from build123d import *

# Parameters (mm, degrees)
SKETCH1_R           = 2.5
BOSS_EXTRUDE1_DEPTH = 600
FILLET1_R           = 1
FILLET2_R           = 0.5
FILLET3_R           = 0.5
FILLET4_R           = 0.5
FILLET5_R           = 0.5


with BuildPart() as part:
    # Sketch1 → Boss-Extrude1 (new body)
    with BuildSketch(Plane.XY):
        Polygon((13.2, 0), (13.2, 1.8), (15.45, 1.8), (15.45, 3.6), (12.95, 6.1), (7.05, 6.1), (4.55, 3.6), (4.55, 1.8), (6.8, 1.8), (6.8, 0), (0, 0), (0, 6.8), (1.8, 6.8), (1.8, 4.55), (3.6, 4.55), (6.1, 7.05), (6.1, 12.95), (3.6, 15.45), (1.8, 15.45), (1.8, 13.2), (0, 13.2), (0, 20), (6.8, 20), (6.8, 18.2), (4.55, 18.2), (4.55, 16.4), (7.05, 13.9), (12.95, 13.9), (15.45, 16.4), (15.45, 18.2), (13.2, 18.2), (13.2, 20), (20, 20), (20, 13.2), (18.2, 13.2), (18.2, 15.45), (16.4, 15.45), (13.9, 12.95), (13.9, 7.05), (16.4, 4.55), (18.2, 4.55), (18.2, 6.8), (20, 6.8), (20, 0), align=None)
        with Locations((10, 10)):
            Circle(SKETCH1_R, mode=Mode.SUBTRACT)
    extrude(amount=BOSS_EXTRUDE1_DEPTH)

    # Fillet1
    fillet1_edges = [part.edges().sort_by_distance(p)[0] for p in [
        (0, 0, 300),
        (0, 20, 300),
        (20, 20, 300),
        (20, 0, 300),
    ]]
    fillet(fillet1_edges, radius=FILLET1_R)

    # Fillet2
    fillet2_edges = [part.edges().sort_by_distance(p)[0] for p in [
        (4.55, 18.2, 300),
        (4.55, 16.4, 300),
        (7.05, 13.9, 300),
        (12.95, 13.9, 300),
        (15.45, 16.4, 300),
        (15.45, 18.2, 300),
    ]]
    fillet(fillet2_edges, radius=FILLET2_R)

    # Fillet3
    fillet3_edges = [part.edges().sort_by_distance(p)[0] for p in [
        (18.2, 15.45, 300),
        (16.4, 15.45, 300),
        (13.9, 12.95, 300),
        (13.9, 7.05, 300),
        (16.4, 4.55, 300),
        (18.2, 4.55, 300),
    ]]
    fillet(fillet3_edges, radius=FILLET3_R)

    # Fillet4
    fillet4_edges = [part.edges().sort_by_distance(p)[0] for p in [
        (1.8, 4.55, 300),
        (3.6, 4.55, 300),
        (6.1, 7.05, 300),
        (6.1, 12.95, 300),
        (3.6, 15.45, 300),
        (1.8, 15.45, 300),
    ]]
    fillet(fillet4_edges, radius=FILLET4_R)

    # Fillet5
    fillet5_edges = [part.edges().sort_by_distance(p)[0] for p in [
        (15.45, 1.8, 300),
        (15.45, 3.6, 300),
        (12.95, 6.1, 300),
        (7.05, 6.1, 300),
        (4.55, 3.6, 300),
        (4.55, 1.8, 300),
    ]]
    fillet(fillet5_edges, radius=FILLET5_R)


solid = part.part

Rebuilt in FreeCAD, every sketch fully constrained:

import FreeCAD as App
import Part
import Sketcher
from FreeCAD import Vector
Q = App.Units.Quantity


def edges_at(feature, points):
    """Names of the edges that pass closest to the given points."""
    edges = feature.Shape.Edges
    near = lambda p: min(range(len(edges)), key=lambda i: edges[i].distToShape(Part.Vertex(*p))[0])
    return sorted({f"Edge{near(p) + 1}" for p in points})

doc = App.newDocument("Part")
body = doc.addObject("PartDesign::Body", "Body")

sketch1 = doc.addObject("Sketcher::SketchObject", "Sketch")
body.addObject(sketch1)
sketch1.AttachmentSupport = (doc.XY_Plane, [""])
sketch1.MapMode = "FlatFace"
sketch1.addGeometry(Part.LineSegment(Vector(13.2, 1.8, 0), Vector(13.2, 0, 0)), False)
sketch1.addGeometry(Part.LineSegment(Vector(13.2, 0, 0), Vector(20, 0, 0)), False)
sketch1.addGeometry(Part.LineSegment(Vector(20, 0, 0), Vector(20, 6.8, 0)), False)
sketch1.addGeometry(Part.LineSegment(Vector(20, 6.8, 0), Vector(18.2, 6.8, 0)), False)
sketch1.addGeometry(Part.LineSegment(Vector(18.2, 6.8, 0), Vector(18.2, 4.55, 0)), False)
sketch1.addGeometry(Part.LineSegment(Vector(18.2, 4.55, 0), Vector(16.4, 4.55, 0)), False)
sketch1.addGeometry(Part.LineSegment(Vector(16.4, 4.55, 0), Vector(13.9, 7.05, 0)), False)
sketch1.addGeometry(Part.LineSegment(Vector(13.9, 7.05, 0), Vector(13.9, 12.95, 0)), False)
sketch1.addGeometry(Part.LineSegment(Vector(13.9, 12.95, 0), Vector(16.4, 15.45, 0)), False)
sketch1.addGeometry(Part.LineSegment(Vector(16.4, 15.45, 0), Vector(18.2, 15.45, 0)), False)
sketch1.addGeometry(Part.LineSegment(Vector(18.2, 15.45, 0), Vector(18.2, 13.2, 0)), False)
sketch1.addGeometry(Part.LineSegment(Vector(18.2, 13.2, 0), Vector(20, 13.2, 0)), False)
sketch1.addGeometry(Part.LineSegment(Vector(20, 13.2, 0), Vector(20, 20, 0)), False)
sketch1.addGeometry(Part.LineSegment(Vector(20, 20, 0), Vector(13.2, 20, 0)), False)
sketch1.addGeometry(Part.LineSegment(Vector(13.2, 20, 0), Vector(13.2, 18.2, 0)), False)
sketch1.addGeometry(Part.LineSegment(Vector(13.2, 18.2, 0), Vector(15.45, 18.2, 0)), False)
sketch1.addGeometry(Part.LineSegment(Vector(15.45, 18.2, 0), Vector(15.45, 16.4, 0)), False)
sketch1.addGeometry(Part.LineSegment(Vector(15.45, 16.4, 0), Vector(12.95, 13.9, 0)), False)
sketch1.addGeometry(Part.LineSegment(Vector(12.95, 13.9, 0), Vector(7.05, 13.9, 0)), False)
sketch1.addGeometry(Part.LineSegment(Vector(7.05, 13.9, 0), Vector(4.55, 16.4, 0)), False)
sketch1.addGeometry(Part.LineSegment(Vector(4.55, 16.4, 0), Vector(4.55, 18.2, 0)), False)
sketch1.addGeometry(Part.LineSegment(Vector(4.55, 18.2, 0), Vector(6.8, 18.2, 0)), False)
sketch1.addGeometry(Part.LineSegment(Vector(6.8, 18.2, 0), Vector(6.8, 20, 0)), False)
sketch1.addGeometry(Part.LineSegment(Vector(6.8, 20, 0), Vector(0, 20, 0)), False)
sketch1.addGeometry(Part.LineSegment(Vector(0, 20, 0), Vector(0, 13.2, 0)), False)
sketch1.addGeometry(Part.LineSegment(Vector(0, 13.2, 0), Vector(1.8, 13.2, 0)), False)
sketch1.addGeometry(Part.LineSegment(Vector(1.8, 13.2, 0), Vector(1.8, 15.45, 0)), False)
sketch1.addGeometry(Part.LineSegment(Vector(1.8, 15.45, 0), Vector(3.6, 15.45, 0)), False)
sketch1.addGeometry(Part.LineSegment(Vector(3.6, 15.45, 0), Vector(6.1, 12.95, 0)), False)
sketch1.addGeometry(Part.LineSegment(Vector(6.1, 12.95, 0), Vector(6.1, 7.05, 0)), False)
sketch1.addGeometry(Part.LineSegment(Vector(6.1, 7.05, 0), Vector(3.6, 4.55, 0)), False)
sketch1.addGeometry(Part.LineSegment(Vector(3.6, 4.55, 0), Vector(1.8, 4.55, 0)), False)
sketch1.addGeometry(Part.LineSegment(Vector(1.8, 4.55, 0), Vector(1.8, 6.8, 0)), False)
sketch1.addGeometry(Part.LineSegment(Vector(1.8, 6.8, 0), Vector(0, 6.8, 0)), False)
sketch1.addGeometry(Part.LineSegment(Vector(0, 6.8, 0), Vector(0, 0, 0)), False)
sketch1.addGeometry(Part.LineSegment(Vector(0, 0, 0), Vector(6.8, 0, 0)), False)
sketch1.addGeometry(Part.LineSegment(Vector(6.8, 0, 0), Vector(6.8, 1.8, 0)), False)
sketch1.addGeometry(Part.LineSegment(Vector(6.8, 1.8, 0), Vector(4.55, 1.8, 0)), False)
sketch1.addGeometry(Part.LineSegment(Vector(4.55, 1.8, 0), Vector(4.55, 3.6, 0)), False)
sketch1.addGeometry(Part.LineSegment(Vector(4.55, 3.6, 0), Vector(7.05, 6.1, 0)), False)
sketch1.addGeometry(Part.LineSegment(Vector(7.05, 6.1, 0), Vector(12.95, 6.1, 0)), False)
sketch1.addGeometry(Part.LineSegment(Vector(12.95, 6.1, 0), Vector(15.45, 3.6, 0)), False)
sketch1.addGeometry(Part.LineSegment(Vector(15.45, 3.6, 0), Vector(15.45, 1.8, 0)), False)
sketch1.addGeometry(Part.LineSegment(Vector(15.45, 1.8, 0), Vector(13.2, 1.8, 0)), False)
sketch1.addGeometry(Part.Circle(Vector(10, 10, 0), Vector(0, 0, 1), 2.5), False)
sketch1.addConstraint(Sketcher.Constraint("Coincident", 0, 2, 1, 1))
sketch1.addConstraint(Sketcher.Constraint("Coincident", 1, 2, 2, 1))
sketch1.addConstraint(Sketcher.Constraint("Coincident", 2, 2, 3, 1))
sketch1.addConstraint(Sketcher.Constraint("Coincident", 3, 2, 4, 1))
sketch1.addConstraint(Sketcher.Constraint("Coincident", 4, 2, 5, 1))
sketch1.addConstraint(Sketcher.Constraint("Coincident", 5, 2, 6, 1))
sketch1.addConstraint(Sketcher.Constraint("Coincident", 6, 2, 7, 1))
sketch1.addConstraint(Sketcher.Constraint("Coincident", 7, 2, 8, 1))
sketch1.addConstraint(Sketcher.Constraint("Coincident", 8, 2, 9, 1))
sketch1.addConstraint(Sketcher.Constraint("Coincident", 9, 2, 10, 1))
sketch1.addConstraint(Sketcher.Constraint("Coincident", 10, 2, 11, 1))
sketch1.addConstraint(Sketcher.Constraint("Coincident", 11, 2, 12, 1))
sketch1.addConstraint(Sketcher.Constraint("Coincident", 12, 2, 13, 1))
sketch1.addConstraint(Sketcher.Constraint("Coincident", 13, 2, 14, 1))
sketch1.addConstraint(Sketcher.Constraint("Coincident", 14, 2, 15, 1))
sketch1.addConstraint(Sketcher.Constraint("Coincident", 15, 2, 16, 1))
sketch1.addConstraint(Sketcher.Constraint("Coincident", 16, 2, 17, 1))
sketch1.addConstraint(Sketcher.Constraint("Coincident", 17, 2, 18, 1))
sketch1.addConstraint(Sketcher.Constraint("Coincident", 18, 2, 19, 1))
sketch1.addConstraint(Sketcher.Constraint("Coincident", 19, 2, 20, 1))
sketch1.addConstraint(Sketcher.Constraint("Coincident", 20, 2, 21, 1))
sketch1.addConstraint(Sketcher.Constraint("Coincident", 21, 2, 22, 1))
sketch1.addConstraint(Sketcher.Constraint("Coincident", 22, 2, 23, 1))
sketch1.addConstraint(Sketcher.Constraint("Coincident", 23, 2, 24, 1))
sketch1.addConstraint(Sketcher.Constraint("Coincident", 24, 2, 25, 1))
sketch1.addConstraint(Sketcher.Constraint("Coincident", 25, 2, 26, 1))
sketch1.addConstraint(Sketcher.Constraint("Coincident", 26, 2, 27, 1))
sketch1.addConstraint(Sketcher.Constraint("Coincident", 27, 2, 28, 1))
sketch1.addConstraint(Sketcher.Constraint("Coincident", 28, 2, 29, 1))
sketch1.addConstraint(Sketcher.Constraint("Coincident", 29, 2, 30, 1))
sketch1.addConstraint(Sketcher.Constraint("Coincident", 30, 2, 31, 1))
sketch1.addConstraint(Sketcher.Constraint("Coincident", 31, 2, 32, 1))
sketch1.addConstraint(Sketcher.Constraint("Coincident", 32, 2, 33, 1))
sketch1.addConstraint(Sketcher.Constraint("Coincident", 33, 2, 34, 1))
sketch1.addConstraint(Sketcher.Constraint("Coincident", 34, 2, 35, 1))
sketch1.addConstraint(Sketcher.Constraint("Coincident", 35, 2, 36, 1))
sketch1.addConstraint(Sketcher.Constraint("Coincident", 36, 2, 37, 1))
sketch1.addConstraint(Sketcher.Constraint("Coincident", 37, 2, 38, 1))
sketch1.addConstraint(Sketcher.Constraint("Coincident", 38, 2, 39, 1))
sketch1.addConstraint(Sketcher.Constraint("Coincident", 39, 2, 40, 1))
sketch1.addConstraint(Sketcher.Constraint("Coincident", 40, 2, 41, 1))
sketch1.addConstraint(Sketcher.Constraint("Coincident", 41, 2, 42, 1))
sketch1.addConstraint(Sketcher.Constraint("Coincident", 42, 2, 43, 1))
sketch1.addConstraint(Sketcher.Constraint("Coincident", 43, 2, 0, 1))
sketch1.addConstraint(Sketcher.Constraint("Vertical", 0))
sketch1.addConstraint(Sketcher.Constraint("Horizontal", 1))
sketch1.addConstraint(Sketcher.Constraint("Vertical", 2))
sketch1.addConstraint(Sketcher.Constraint("Horizontal", 3))
sketch1.addConstraint(Sketcher.Constraint("Vertical", 4))
sketch1.addConstraint(Sketcher.Constraint("Horizontal", 5))
sketch1.addConstraint(Sketcher.Constraint("Vertical", 7))
sketch1.addConstraint(Sketcher.Constraint("Horizontal", 9))
sketch1.addConstraint(Sketcher.Constraint("Vertical", 10))
sketch1.addConstraint(Sketcher.Constraint("Horizontal", 11))
sketch1.addConstraint(Sketcher.Constraint("Vertical", 12))
sketch1.addConstraint(Sketcher.Constraint("Horizontal", 13))
sketch1.addConstraint(Sketcher.Constraint("Vertical", 14))
sketch1.addConstraint(Sketcher.Constraint("Horizontal", 15))
sketch1.addConstraint(Sketcher.Constraint("Vertical", 16))
sketch1.addConstraint(Sketcher.Constraint("Horizontal", 18))
sketch1.addConstraint(Sketcher.Constraint("Vertical", 20))
sketch1.addConstraint(Sketcher.Constraint("Horizontal", 21))
sketch1.addConstraint(Sketcher.Constraint("Vertical", 22))
sketch1.addConstraint(Sketcher.Constraint("Horizontal", 23))
sketch1.addConstraint(Sketcher.Constraint("Vertical", 24))
sketch1.addConstraint(Sketcher.Constraint("Horizontal", 25))
sketch1.addConstraint(Sketcher.Constraint("Vertical", 26))
sketch1.addConstraint(Sketcher.Constraint("Horizontal", 27))
sketch1.addConstraint(Sketcher.Constraint("Vertical", 29))
sketch1.addConstraint(Sketcher.Constraint("Horizontal", 31))
sketch1.addConstraint(Sketcher.Constraint("Vertical", 32))
sketch1.addConstraint(Sketcher.Constraint("Horizontal", 33))
sketch1.addConstraint(Sketcher.Constraint("Vertical", 34))
sketch1.addConstraint(Sketcher.Constraint("Horizontal", 35))
sketch1.addConstraint(Sketcher.Constraint("Vertical", 36))
sketch1.addConstraint(Sketcher.Constraint("Horizontal", 37))
sketch1.addConstraint(Sketcher.Constraint("Vertical", 38))
sketch1.addConstraint(Sketcher.Constraint("Horizontal", 40))
sketch1.addConstraint(Sketcher.Constraint("Vertical", 42))
sketch1.addConstraint(Sketcher.Constraint("Horizontal", 43))
sketch1.addConstraint(Sketcher.Constraint("Coincident", 34, 2, -1, 1))
sketch1.addConstraint(Sketcher.Constraint("PointOnObject", 0, 2, -1))
sketch1.addConstraint(Sketcher.Constraint("PointOnObject", 23, 2, -2))
sketch1.addConstraint(Sketcher.Constraint("Perpendicular", 6, 8))
sketch1.addConstraint(Sketcher.Constraint("Parallel", 8, 17))
sketch1.addConstraint(Sketcher.Constraint("Perpendicular", 17, 19))
sketch1.addConstraint(Sketcher.Constraint("Parallel", 19, 28))
sketch1.addConstraint(Sketcher.Constraint("Perpendicular", 28, 30))
sketch1.addConstraint(Sketcher.Constraint("Parallel", 30, 39))
sketch1.addConstraint(Sketcher.Constraint("Perpendicular", 39, 41))
sketch1.addConstraint(Sketcher.Constraint("Horizontal", 16, 2, 19, 2))
sketch1.addConstraint(Sketcher.Constraint("Horizontal", 15, 2, 20, 2))
sketch1.addConstraint(Sketcher.Constraint("Horizontal", 13, 2, 22, 2))
sketch1.addConstraint(Sketcher.Constraint("Horizontal", 11, 2, 24, 2))
sketch1.addConstraint(Sketcher.Constraint("Horizontal", 9, 2, 26, 2))
sketch1.addConstraint(Sketcher.Constraint("Horizontal", 7, 2, 28, 2))
sketch1.addConstraint(Sketcher.Constraint("Horizontal", 6, 2, 29, 2))
sketch1.addConstraint(Sketcher.Constraint("Horizontal", 5, 2, 30, 2))
sketch1.addConstraint(Sketcher.Constraint("Horizontal", 3, 2, 32, 2))
sketch1.addConstraint(Sketcher.Constraint("Horizontal", 38, 2, 41, 2))
sketch1.addConstraint(Sketcher.Constraint("Horizontal", 37, 2, 42, 2))
sketch1.addConstraint(Sketcher.Constraint("Vertical", 5, 2, 8, 2))
sketch1.addConstraint(Sketcher.Constraint("Vertical", 4, 2, 9, 2))
sketch1.addConstraint(Sketcher.Constraint("Vertical", 2, 2, 11, 2))
sketch1.addConstraint(Sketcher.Constraint("Vertical", 0, 2, 13, 2))
sketch1.addConstraint(Sketcher.Constraint("Vertical", 27, 2, 30, 2))
sketch1.addConstraint(Sketcher.Constraint("Vertical", 26, 2, 31, 2))
sketch1.addConstraint(Sketcher.Constraint("Vertical", 22, 2, 35, 2))
sketch1.addConstraint(Sketcher.Constraint("Vertical", 20, 2, 37, 2))
sketch1.addConstraint(Sketcher.Constraint("Vertical", 18, 2, 39, 2))
sketch1.addConstraint(Sketcher.Constraint("Vertical", 17, 2, 40, 2))
sketch1.addConstraint(Sketcher.Constraint("Equal", 3, 5))
sketch1.addConstraint(Sketcher.Constraint("Equal", 15, 21))
sketch1.addConstraint(Sketcher.Constraint("Equal", 13, 23))
sketch1.addConstraint(Sketcher.Constraint("Equal", 11, 25))
sketch1.addConstraint(Sketcher.Constraint("Equal", 25, 27))
sketch1.addConstraint(Sketcher.Constraint("Equal", 33, 0))
sketch1.addConstraint(Sketcher.Constraint("Equal", 35, 2))
sketch1.addConstraint(Sketcher.Constraint("Equal", 43, 4))
sketch1.addConstraint(Sketcher.Constraint("Equal", 40, 7))
sketch1.addConstraint(Sketcher.Constraint("Equal", 4, 10))
sketch1.addConstraint(Sketcher.Constraint("Equal", 2, 12))
sketch1.addConstraint(Sketcher.Constraint("Equal", 0, 14))
sketch1.addConstraint(Sketcher.Constraint("Equal", 14, 16))
sketch1.addConstraint(Sketcher.Constraint("Equal", 36, 38))
sketch1.addConstraint(Sketcher.Constraint("Equal", 8, 17))
sketch1.addConstraint(Sketcher.Constraint("Diameter", 44, Q("5 mm")))
sketch1.addConstraint(Sketcher.Constraint("DistanceX", 1, 1, 1, 2, Q("6.8 mm")))
sketch1.addConstraint(Sketcher.Constraint("DistanceX", 3, 2, 3, 1, Q("1.8 mm")))
sketch1.addConstraint(Sketcher.Constraint("DistanceX", 18, 2, 18, 1, Q("5.9 mm")))
sketch1.addConstraint(Sketcher.Constraint("DistanceX", -1, 1, 44, 3, Q("10 mm")))
sketch1.addConstraint(Sketcher.Constraint("DistanceY", -1, 1, 44, 3, Q("10 mm")))
sketch1.addConstraint(Sketcher.Constraint("DistanceX", -1, 1, 1, 2, Q("20 mm")))
sketch1.addConstraint(Sketcher.Constraint("DistanceX", 15, 1, 15, 2, Q("2.25 mm")))
pad1 = doc.addObject("PartDesign::Pad", "Pad")
body.addObject(pad1)
pad1.Profile = sketch1
pad1.Length = 600
doc.recompute()

fillet = doc.addObject("PartDesign::Fillet", "Fillet")
body.addObject(fillet)
fillet.Base = (pad1, edges_at(pad1, [
    (0, 0, 300),
    (0, 20, 300),
    (20, 20, 300),
    (20, 0, 300),
]))
fillet.Radius = 1
doc.recompute()

fillet2 = doc.addObject("PartDesign::Fillet", "Fillet001")
body.addObject(fillet2)
fillet2.Base = (fillet, edges_at(fillet, [
    (4.55, 18.2, 300),
    (4.55, 16.4, 300),
    (7.05, 13.9, 300),
    (12.95, 13.9, 300),
    (15.45, 16.4, 300),
    (15.45, 18.2, 300),
]))
fillet2.Radius = 0.5
doc.recompute()

fillet3 = doc.addObject("PartDesign::Fillet", "Fillet002")
body.addObject(fillet3)
fillet3.Base = (fillet2, edges_at(fillet2, [
    (18.2, 15.45, 300),
    (16.4, 15.45, 300),
    (13.9, 12.95, 300),
    (13.9, 7.05, 300),
    (16.4, 4.55, 300),
    (18.2, 4.55, 300),
]))
fillet3.Radius = 0.5
doc.recompute()

fillet4 = doc.addObject("PartDesign::Fillet", "Fillet003")
body.addObject(fillet4)
fillet4.Base = (fillet3, edges_at(fillet3, [
    (1.8, 4.55, 300),
    (3.6, 4.55, 300),
    (6.1, 7.05, 300),
    (6.1, 12.95, 300),
    (3.6, 15.45, 300),
    (1.8, 15.45, 300),
]))
fillet4.Radius = 0.5
doc.recompute()

fillet5 = doc.addObject("PartDesign::Fillet", "Fillet004")
body.addObject(fillet5)
fillet5.Base = (fillet4, edges_at(fillet4, [
    (15.45, 1.8, 300),
    (15.45, 3.6, 300),
    (12.95, 6.1, 300),
    (7.05, 6.1, 300),
    (4.55, 3.6, 300),
    (4.55, 1.8, 300),
]))
fillet5.Radius = 0.5

doc.recompute()
